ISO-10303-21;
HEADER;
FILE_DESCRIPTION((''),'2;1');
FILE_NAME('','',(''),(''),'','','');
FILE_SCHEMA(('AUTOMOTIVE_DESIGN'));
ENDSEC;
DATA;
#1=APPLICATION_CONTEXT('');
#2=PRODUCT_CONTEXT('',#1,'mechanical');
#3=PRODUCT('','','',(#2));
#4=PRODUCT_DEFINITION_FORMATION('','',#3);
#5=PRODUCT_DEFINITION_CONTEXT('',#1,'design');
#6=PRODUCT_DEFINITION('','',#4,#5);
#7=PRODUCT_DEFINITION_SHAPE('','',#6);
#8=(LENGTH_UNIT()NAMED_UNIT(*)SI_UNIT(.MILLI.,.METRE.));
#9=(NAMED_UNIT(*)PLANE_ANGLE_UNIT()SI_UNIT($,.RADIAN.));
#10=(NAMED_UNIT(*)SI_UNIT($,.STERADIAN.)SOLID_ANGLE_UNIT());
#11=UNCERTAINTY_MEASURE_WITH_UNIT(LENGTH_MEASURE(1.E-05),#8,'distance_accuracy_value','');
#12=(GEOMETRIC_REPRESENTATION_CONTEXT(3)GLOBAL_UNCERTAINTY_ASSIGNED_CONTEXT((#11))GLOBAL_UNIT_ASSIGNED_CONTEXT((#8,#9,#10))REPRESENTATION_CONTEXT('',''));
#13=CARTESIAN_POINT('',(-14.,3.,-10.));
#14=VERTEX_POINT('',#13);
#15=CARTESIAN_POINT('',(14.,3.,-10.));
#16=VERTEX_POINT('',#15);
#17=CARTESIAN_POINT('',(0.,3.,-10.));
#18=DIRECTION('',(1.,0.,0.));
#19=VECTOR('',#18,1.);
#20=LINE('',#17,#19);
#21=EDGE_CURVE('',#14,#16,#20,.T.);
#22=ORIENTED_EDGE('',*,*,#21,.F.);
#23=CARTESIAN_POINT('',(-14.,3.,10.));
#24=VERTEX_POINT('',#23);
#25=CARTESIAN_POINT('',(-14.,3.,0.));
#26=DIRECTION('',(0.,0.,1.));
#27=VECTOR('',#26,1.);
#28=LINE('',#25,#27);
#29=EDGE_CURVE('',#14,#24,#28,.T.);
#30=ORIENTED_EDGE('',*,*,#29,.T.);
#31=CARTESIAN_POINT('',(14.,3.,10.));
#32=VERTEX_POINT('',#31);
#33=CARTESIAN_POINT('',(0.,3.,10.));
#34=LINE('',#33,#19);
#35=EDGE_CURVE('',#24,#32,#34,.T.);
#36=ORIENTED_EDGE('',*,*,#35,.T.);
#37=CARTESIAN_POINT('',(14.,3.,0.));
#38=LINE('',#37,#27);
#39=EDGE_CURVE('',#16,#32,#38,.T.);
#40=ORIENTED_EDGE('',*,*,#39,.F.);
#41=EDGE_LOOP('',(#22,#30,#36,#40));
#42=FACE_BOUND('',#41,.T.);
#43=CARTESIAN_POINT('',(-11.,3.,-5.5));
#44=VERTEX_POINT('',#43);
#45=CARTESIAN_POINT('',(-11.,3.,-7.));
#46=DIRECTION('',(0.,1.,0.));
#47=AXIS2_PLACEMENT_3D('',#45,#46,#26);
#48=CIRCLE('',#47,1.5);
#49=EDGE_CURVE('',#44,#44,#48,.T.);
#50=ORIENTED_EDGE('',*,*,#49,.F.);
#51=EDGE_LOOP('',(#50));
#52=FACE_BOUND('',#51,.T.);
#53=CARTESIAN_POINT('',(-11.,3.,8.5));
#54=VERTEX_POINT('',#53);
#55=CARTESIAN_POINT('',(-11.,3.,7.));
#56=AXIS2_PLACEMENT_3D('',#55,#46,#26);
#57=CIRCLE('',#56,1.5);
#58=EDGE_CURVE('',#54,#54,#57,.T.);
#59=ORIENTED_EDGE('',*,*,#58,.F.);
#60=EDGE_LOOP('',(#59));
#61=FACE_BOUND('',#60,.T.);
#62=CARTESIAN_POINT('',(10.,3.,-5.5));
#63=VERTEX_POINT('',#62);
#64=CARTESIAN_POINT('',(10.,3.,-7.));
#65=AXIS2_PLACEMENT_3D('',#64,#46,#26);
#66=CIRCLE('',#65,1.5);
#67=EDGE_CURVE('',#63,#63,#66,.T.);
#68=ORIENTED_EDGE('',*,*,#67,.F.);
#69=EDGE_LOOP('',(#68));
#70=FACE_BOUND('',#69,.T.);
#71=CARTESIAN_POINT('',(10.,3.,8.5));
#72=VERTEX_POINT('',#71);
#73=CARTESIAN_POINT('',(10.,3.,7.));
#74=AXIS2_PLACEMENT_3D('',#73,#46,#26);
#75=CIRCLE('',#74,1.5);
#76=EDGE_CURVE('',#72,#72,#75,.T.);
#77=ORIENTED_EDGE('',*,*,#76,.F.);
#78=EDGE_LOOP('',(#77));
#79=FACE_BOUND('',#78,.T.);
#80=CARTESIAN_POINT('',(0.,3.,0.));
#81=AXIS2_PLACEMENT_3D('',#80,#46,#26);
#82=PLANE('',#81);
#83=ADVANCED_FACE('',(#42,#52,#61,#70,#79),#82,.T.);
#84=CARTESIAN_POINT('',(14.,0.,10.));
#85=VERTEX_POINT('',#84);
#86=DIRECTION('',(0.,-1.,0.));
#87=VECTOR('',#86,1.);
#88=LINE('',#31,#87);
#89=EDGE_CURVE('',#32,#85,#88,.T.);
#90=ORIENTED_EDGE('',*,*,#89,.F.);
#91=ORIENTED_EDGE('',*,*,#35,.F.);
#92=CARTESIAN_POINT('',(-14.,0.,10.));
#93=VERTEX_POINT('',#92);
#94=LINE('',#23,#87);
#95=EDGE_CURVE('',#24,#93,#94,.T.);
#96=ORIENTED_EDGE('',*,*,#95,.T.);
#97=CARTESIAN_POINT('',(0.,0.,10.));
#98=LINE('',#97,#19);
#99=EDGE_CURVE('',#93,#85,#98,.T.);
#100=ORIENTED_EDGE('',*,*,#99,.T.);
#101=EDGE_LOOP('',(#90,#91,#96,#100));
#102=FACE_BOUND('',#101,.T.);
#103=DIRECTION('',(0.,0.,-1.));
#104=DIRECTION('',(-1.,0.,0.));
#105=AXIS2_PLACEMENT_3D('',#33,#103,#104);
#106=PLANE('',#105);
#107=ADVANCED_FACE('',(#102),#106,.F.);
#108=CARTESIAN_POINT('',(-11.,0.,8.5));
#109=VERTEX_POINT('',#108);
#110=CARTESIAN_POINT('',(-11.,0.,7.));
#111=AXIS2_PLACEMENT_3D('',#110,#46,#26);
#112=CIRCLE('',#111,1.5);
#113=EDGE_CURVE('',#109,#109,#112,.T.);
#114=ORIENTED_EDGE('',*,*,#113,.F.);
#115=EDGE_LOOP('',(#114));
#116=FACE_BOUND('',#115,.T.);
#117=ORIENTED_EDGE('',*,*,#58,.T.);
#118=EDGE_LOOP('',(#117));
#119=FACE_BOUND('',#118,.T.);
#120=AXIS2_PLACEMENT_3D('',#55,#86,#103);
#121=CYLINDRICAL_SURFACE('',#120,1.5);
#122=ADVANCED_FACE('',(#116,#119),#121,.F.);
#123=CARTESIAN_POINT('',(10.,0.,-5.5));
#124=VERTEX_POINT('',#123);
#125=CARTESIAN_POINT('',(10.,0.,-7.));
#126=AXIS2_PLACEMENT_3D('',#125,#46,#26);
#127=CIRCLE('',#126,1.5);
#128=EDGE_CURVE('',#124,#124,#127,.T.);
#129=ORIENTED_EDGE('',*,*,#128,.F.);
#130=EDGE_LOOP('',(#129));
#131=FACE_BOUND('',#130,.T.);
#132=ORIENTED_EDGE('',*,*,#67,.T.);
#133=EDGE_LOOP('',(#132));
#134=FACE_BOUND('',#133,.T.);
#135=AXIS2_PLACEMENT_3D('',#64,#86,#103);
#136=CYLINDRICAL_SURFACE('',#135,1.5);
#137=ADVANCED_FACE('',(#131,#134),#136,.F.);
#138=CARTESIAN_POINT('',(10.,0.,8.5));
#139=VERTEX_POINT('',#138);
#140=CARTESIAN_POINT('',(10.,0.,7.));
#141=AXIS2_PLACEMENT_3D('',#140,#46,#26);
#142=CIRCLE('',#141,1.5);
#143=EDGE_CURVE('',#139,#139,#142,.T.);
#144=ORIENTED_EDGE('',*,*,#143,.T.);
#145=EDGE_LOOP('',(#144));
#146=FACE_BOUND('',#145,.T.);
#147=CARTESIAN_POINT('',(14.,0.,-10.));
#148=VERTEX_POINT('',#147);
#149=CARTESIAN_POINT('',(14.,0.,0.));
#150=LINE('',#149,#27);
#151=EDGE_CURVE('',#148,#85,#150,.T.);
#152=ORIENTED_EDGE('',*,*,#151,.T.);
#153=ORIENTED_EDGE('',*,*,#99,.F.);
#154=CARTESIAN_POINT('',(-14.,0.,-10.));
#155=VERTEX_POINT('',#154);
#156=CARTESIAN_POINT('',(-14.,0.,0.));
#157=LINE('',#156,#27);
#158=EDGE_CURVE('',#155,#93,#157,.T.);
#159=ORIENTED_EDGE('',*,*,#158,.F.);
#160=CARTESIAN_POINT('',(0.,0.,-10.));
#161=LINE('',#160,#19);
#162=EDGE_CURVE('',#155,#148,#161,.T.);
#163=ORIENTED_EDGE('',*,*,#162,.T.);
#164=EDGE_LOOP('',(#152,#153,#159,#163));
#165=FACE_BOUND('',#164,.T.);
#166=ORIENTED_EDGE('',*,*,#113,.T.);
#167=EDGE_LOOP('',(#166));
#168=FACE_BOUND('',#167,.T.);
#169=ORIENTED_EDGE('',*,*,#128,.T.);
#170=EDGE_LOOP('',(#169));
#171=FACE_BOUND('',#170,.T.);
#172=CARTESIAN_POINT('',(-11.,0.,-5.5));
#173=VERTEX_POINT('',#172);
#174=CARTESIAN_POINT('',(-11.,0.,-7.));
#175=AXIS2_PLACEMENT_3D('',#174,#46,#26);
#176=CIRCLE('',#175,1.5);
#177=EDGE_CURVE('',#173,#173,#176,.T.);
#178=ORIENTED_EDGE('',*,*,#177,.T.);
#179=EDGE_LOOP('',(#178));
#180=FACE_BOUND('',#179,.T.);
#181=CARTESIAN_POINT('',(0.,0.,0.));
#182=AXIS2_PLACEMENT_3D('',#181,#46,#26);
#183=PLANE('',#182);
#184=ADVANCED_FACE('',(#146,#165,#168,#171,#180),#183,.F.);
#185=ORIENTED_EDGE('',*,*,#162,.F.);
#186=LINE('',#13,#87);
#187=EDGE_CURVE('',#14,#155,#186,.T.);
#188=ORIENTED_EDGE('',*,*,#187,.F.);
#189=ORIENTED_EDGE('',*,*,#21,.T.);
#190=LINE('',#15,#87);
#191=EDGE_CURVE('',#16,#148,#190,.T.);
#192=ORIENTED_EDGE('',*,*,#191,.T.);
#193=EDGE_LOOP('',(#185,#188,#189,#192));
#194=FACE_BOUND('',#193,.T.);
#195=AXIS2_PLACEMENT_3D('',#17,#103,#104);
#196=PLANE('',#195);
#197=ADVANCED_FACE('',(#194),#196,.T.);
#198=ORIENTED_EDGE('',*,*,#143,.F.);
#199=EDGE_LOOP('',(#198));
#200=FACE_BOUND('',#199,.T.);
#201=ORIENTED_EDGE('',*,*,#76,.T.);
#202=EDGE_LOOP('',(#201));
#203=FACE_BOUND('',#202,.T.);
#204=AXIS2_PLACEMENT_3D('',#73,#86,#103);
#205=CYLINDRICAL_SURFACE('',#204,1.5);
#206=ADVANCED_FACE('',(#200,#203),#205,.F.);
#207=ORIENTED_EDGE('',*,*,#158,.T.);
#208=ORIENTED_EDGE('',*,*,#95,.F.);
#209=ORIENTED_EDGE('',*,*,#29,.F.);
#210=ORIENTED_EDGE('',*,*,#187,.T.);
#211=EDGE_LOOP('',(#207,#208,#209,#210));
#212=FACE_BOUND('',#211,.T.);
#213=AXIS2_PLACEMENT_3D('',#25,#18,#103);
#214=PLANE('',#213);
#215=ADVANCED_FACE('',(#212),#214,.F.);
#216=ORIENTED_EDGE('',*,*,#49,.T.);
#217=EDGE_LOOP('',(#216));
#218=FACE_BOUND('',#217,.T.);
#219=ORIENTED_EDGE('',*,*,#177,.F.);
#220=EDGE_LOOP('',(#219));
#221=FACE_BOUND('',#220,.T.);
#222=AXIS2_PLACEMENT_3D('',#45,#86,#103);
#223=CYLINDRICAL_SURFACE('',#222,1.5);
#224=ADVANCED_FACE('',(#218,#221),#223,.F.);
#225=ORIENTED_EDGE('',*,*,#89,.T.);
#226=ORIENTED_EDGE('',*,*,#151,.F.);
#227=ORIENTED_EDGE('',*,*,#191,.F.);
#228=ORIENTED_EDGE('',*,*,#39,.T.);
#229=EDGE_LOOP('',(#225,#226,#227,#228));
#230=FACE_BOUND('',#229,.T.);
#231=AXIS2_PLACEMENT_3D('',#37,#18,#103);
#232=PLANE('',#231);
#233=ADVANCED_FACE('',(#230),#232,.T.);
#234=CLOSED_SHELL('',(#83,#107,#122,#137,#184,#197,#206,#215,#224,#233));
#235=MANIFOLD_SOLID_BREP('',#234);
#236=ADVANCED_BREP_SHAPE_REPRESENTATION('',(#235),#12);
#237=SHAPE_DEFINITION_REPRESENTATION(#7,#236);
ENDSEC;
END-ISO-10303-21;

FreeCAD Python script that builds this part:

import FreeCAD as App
import Part
import Sketcher

V = App.Vector

doc = App.newDocument("Part")
body = doc.addObject("PartDesign::Body", "Body")

# Sketch on XZ plane
sketch1 = body.newObject("Sketcher::SketchObject", "Sketch")
sketch1.AttachmentSupport = (doc.getObject("XZ_Plane"), [""])
sketch1.MapMode = "FlatFace"
sketch1.addGeometry([
    Part.LineSegment(V(-14, -10, 0), V(-14, 10, 0)),  # 0
    Part.LineSegment(V(-14, 10, 0), V(14, 10, 0)),  # 1
    Part.LineSegment(V(14, 10, 0), V(14, -10, 0)),  # 2
    Part.LineSegment(V(14, -10, 0), V(-14, -10, 0)),  # 3
    Part.Circle(V(-11, 7, 0), V(0, 0, 1), 1.5),  # 4
    Part.Circle(V(10, 7, 0), V(0, 0, 1), 1.5),  # 5
    Part.Circle(V(-11, -7, 0), V(0, 0, 1), 1.5),  # 6
    Part.Circle(V(10, -7, 0), V(0, 0, 1), 1.5),  # 7
], False)
sketch1.addConstraint([
    Sketcher.Constraint("Coincident", 0, 2, 1, 1),
    Sketcher.Constraint("Coincident", 1, 2, 2, 1),
    Sketcher.Constraint("Coincident", 2, 2, 3, 1),
    Sketcher.Constraint("Coincident", 3, 2, 0, 1),
    Sketcher.Constraint("Vertical", 0),
    Sketcher.Constraint("Horizontal", 1),
    Sketcher.Constraint("Vertical", 2),
    Sketcher.Constraint("Horizontal", 3),
    Sketcher.Constraint("Equal", 4, 5),
    Sketcher.Constraint("Equal", 5, 6),
    Sketcher.Constraint("Equal", 6, 7),
    Sketcher.Constraint("Symmetric", 0, 2, 2, 2, -1, 1),
    Sketcher.Constraint("Symmetric", 4, 3, 6, 3, -1),
    Sketcher.Constraint("Symmetric", 5, 3, 7, 3, -1),
    Sketcher.Constraint("Horizontal", 4, 3, 5, 3),
    Sketcher.Constraint("Diameter", 4, 3.0),
    Sketcher.Constraint("DistanceX", 1, 1, 1, 2, 28.0),
    Sketcher.Constraint("DistanceY", 0, 1, 0, 2, 20.0),
    Sketcher.Constraint("DistanceX", 4, 3, -1, 1, 11.0),
    Sketcher.Constraint("DistanceY", -1, 1, 4, 3, 7.0),
    Sketcher.Constraint("DistanceX", -1, 1, 5, 3, 10.0),
])
pad1 = body.newObject("PartDesign::Pad", "Pad")
pad1.Profile = sketch1
pad1.Length = 3
pad1.Reversed = True

doc.recompute()
